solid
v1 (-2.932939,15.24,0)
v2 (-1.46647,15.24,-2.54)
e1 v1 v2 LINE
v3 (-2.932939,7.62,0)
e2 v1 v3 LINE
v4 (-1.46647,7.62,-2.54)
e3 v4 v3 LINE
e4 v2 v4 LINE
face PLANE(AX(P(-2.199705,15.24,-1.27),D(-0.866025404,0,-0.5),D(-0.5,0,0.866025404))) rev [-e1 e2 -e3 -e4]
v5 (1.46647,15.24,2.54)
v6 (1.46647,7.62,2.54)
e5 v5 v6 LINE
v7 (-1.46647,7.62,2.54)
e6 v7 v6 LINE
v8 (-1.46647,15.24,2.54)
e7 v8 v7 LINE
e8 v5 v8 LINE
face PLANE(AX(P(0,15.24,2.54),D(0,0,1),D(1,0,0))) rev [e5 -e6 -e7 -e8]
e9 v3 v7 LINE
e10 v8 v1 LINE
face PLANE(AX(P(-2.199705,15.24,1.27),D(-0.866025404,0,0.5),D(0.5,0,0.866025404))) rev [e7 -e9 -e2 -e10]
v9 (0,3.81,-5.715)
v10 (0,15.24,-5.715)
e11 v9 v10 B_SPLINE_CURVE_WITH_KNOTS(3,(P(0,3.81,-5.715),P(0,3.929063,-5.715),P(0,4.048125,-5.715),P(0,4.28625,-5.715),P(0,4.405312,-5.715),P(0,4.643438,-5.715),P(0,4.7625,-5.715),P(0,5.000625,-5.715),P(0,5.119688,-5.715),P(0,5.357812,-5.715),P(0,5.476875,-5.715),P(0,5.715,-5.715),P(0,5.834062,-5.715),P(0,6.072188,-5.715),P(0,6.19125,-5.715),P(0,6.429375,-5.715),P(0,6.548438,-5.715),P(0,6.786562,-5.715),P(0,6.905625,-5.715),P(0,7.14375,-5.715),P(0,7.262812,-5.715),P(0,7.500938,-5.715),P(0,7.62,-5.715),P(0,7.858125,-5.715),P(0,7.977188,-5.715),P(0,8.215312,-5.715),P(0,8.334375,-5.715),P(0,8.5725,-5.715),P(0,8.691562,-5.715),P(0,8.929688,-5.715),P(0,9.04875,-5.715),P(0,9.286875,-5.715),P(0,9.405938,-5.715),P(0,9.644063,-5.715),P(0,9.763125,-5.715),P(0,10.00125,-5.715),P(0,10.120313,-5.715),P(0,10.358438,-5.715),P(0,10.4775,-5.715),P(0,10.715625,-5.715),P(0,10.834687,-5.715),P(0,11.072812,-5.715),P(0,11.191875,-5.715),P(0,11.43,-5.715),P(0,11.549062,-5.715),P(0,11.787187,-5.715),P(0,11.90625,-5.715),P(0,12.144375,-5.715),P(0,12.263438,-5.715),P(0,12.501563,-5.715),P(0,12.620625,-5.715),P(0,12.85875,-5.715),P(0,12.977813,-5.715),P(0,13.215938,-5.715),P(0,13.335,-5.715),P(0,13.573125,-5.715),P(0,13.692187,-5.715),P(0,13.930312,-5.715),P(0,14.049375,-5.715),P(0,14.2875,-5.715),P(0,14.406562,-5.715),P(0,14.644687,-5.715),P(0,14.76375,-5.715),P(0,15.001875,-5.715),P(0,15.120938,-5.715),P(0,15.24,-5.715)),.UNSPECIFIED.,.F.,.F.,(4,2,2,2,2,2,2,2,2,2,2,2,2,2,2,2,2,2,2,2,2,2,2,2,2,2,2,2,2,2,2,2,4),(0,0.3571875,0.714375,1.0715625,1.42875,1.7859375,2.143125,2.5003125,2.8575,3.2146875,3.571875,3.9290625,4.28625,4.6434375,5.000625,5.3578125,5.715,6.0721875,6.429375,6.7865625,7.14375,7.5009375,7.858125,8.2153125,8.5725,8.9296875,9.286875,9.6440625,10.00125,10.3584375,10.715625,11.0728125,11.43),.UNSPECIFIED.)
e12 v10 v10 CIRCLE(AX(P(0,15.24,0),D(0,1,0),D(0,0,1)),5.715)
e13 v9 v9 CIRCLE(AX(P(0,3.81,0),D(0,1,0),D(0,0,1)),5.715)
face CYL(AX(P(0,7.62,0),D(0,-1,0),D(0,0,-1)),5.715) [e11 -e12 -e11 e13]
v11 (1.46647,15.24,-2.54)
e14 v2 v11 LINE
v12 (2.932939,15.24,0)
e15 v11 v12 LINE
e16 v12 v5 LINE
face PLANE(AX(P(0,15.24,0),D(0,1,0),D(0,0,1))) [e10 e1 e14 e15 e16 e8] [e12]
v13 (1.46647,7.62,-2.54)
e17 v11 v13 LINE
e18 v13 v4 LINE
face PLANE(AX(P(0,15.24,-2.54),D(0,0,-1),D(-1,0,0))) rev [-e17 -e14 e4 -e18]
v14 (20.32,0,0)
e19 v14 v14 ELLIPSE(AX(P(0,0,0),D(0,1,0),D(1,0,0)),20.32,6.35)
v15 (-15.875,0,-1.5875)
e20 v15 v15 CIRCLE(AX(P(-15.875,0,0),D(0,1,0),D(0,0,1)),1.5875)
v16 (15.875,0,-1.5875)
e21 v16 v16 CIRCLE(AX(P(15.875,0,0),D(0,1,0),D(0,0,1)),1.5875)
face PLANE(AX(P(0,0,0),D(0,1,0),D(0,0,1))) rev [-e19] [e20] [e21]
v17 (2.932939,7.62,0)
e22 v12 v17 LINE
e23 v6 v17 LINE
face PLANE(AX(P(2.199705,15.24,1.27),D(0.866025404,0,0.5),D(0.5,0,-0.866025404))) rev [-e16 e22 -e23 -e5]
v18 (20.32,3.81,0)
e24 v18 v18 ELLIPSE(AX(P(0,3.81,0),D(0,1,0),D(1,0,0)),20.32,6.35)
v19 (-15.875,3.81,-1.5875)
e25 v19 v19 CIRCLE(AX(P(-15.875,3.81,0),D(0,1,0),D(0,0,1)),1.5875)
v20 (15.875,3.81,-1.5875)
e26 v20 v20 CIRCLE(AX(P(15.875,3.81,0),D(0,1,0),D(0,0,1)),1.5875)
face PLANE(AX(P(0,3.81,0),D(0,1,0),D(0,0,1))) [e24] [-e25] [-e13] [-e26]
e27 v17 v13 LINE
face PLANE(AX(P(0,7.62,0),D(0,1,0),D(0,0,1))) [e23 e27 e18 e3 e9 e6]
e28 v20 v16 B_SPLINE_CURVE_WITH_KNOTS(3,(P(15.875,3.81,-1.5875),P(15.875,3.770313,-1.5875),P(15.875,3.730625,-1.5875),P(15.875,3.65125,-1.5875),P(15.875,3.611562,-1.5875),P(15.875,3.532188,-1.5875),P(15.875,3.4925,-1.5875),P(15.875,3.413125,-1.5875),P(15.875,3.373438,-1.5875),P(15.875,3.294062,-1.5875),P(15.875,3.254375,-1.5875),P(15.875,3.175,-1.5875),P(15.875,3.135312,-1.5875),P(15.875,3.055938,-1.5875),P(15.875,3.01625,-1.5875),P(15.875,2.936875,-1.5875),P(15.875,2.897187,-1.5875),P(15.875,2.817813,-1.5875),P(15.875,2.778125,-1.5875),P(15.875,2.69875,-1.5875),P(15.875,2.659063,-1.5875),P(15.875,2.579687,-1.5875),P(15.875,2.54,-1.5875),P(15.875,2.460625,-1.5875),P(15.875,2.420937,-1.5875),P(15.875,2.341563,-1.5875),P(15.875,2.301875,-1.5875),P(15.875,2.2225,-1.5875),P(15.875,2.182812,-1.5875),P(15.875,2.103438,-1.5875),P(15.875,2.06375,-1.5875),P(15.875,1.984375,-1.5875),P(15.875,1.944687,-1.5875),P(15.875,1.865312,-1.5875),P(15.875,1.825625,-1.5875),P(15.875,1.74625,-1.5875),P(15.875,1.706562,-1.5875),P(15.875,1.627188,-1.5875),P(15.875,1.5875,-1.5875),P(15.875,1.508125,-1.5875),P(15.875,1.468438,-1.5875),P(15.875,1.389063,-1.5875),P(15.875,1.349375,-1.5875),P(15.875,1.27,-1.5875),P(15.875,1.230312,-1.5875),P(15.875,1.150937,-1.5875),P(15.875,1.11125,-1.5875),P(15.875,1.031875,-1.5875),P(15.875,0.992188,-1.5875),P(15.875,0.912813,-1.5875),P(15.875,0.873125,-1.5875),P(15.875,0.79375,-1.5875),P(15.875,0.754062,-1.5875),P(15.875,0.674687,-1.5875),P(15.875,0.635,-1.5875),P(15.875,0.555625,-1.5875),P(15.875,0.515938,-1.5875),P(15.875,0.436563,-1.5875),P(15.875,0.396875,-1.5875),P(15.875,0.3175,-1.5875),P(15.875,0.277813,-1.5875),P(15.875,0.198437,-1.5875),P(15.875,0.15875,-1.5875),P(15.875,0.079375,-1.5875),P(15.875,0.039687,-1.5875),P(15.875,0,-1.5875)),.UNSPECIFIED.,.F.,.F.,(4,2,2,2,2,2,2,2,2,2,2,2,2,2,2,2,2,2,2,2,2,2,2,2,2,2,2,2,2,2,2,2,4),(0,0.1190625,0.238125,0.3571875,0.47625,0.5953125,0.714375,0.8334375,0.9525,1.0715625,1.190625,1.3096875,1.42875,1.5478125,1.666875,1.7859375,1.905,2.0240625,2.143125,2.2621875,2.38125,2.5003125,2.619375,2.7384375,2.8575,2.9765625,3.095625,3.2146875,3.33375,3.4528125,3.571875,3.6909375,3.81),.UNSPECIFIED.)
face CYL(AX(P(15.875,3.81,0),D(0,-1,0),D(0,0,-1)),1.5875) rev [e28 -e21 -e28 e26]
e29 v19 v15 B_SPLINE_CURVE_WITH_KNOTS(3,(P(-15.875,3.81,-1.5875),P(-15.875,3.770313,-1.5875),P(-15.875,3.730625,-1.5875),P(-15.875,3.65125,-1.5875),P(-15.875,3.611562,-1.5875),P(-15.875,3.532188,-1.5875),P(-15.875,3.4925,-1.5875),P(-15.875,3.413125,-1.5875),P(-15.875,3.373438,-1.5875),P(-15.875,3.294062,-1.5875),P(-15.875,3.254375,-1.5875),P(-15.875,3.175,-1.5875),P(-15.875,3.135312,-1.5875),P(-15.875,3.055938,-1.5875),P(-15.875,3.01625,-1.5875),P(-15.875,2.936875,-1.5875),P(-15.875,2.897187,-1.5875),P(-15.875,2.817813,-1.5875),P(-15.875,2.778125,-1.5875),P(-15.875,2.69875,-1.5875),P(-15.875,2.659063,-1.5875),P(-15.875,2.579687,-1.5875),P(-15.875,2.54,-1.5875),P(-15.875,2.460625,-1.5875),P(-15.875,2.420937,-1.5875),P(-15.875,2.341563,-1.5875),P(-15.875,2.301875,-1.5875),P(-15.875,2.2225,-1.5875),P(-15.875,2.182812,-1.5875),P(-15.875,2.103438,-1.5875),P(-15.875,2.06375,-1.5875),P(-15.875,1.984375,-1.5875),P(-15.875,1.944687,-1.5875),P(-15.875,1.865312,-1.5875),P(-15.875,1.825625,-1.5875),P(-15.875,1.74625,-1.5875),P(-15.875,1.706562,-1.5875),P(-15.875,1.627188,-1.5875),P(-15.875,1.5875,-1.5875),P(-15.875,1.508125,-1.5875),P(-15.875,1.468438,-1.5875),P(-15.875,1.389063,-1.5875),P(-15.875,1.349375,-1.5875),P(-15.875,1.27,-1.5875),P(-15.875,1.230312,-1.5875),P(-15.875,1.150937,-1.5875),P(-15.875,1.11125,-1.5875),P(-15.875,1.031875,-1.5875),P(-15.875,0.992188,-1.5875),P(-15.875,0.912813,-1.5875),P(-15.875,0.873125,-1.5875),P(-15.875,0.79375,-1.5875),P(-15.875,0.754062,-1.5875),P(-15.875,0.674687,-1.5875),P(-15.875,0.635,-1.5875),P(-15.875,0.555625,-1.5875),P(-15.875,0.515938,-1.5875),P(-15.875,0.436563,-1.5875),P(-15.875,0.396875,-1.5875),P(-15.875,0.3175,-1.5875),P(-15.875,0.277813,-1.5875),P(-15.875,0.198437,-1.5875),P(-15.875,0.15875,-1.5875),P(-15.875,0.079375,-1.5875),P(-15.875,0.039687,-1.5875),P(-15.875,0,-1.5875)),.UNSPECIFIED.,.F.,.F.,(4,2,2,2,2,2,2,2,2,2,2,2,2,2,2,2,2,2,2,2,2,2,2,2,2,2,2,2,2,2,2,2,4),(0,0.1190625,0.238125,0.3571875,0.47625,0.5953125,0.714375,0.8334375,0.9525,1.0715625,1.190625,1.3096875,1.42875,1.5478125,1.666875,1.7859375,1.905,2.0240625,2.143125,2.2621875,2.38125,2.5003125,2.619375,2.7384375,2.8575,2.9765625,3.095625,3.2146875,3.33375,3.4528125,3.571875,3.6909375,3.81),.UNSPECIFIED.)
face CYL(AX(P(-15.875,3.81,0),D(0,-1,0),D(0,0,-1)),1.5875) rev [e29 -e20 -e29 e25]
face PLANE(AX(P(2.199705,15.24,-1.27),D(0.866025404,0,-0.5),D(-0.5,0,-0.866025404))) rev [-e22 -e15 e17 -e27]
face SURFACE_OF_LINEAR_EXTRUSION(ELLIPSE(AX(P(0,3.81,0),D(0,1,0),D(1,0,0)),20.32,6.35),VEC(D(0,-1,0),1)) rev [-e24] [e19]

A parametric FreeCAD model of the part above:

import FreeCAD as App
import Part
import Sketcher
Q = App.Units.Quantity

doc = App.newDocument("Part")
body = doc.addObject("PartDesign::Body", "Body")

# Sketch on XZ plane
sketch1 = doc.addObject("Sketcher::SketchObject", "Sketch")
body.addObject(sketch1)
sketch1.AttachmentSupport = (doc.XZ_Plane, [""])
sketch1.MapMode = "FlatFace"
sketch1.addGeometry(Part.Ellipse(App.Vector(20.32, 0, 0), App.Vector(0, 6.35, 0), App.Vector(0, 0, 0)), False)
sketch1.addGeometry(Part.Circle(App.Vector(-15.875, 0, 0), App.Vector(0, 0, 1), 1.5875), False)
sketch1.addGeometry(Part.Circle(App.Vector(15.875, 0, 0), App.Vector(0, 0, 1), 1.5875), False)
sketch1.addConstraint(Sketcher.Constraint("Block", 0))
sketch1.addConstraint(Sketcher.Constraint("Equal", 1, 2))
sketch1.addConstraint(Sketcher.Constraint("Symmetric", 1, 3, 2, 3, -1, 1))
sketch1.addConstraint(Sketcher.Constraint("PointOnObject", 1, 3, -1))
sketch1.addConstraint(Sketcher.Constraint("Diameter", 1, Q("0.125 in")))
sketch1.addConstraint(Sketcher.Constraint("DistanceX", 1, 3, 2, 3, Q("1.25 in")))
pad1 = doc.addObject("PartDesign::Pad", "Pad")
body.addObject(pad1)
pad1.Profile = sketch1
pad1.Length = Q("0.15 in")
pad1.Reversed = True

# Sketch on XZ plane
sketch2 = doc.addObject("Sketcher::SketchObject", "Sketch001")
body.addObject(sketch2)
sketch2.AttachmentSupport = (doc.XZ_Plane, [""])
sketch2.MapMode = "FlatFace"
sketch2.AttachmentOffset = App.Placement(App.Vector(0, 0, -0.15 * 25.4), App.Rotation())
sketch2.addGeometry(Part.Circle(App.Vector(0, 0, 0), App.Vector(0, 0, 1), 6), False)
sketch2.addConstraint(Sketcher.Constraint("Coincident", 0, 3, -1, 1))
sketch2.addConstraint(Sketcher.Constraint("Diameter", 0, Q("0.45 in")))
pad2 = doc.addObject("PartDesign::Pad", "Pad001")
body.addObject(pad2)
pad2.Profile = sketch2
pad2.Length = Q("0.15 in")
pad2.Reversed = True

# Sketch on XZ plane
sketch3 = doc.addObject("Sketcher::SketchObject", "Sketch002")
body.addObject(sketch3)
sketch3.AttachmentSupport = (doc.XZ_Plane, [""])
sketch3.MapMode = "FlatFace"
sketch3.AttachmentOffset = App.Placement(App.Vector(0, 0, -0.15 * 25.4), App.Rotation())
sketch3.addGeometry(Part.Circle(App.Vector(0, 0, 0), App.Vector(0, 0, 1), 5.7), False)
sketch3.addGeometry(Part.LineSegment(App.Vector(2.9, 0, 0), App.Vector(1.5, 2.5, 0)), False)
sketch3.addGeometry(Part.LineSegment(App.Vector(1.5, 2.5, 0), App.Vector(-1.5, 2.5, 0)), False)
sketch3.addGeometry(Part.LineSegment(App.Vector(-1.5, 2.5, 0), App.Vector(-2.9, 0, 0)), False)
sketch3.addGeometry(Part.LineSegment(App.Vector(-2.9, 0, 0), App.Vector(-1.5, -2.5, 0)), False)
sketch3.addGeometry(Part.LineSegment(App.Vector(-1.5, -2.5, 0), App.Vector(1.5, -2.5, 0)), False)
sketch3.addGeometry(Part.LineSegment(App.Vector(1.5, -2.5, 0), App.Vector(2.9, 0, 0)), False)
sketch3.addConstraint(Sketcher.Constraint("Coincident", 1, 2, 2, 1))
sketch3.addConstraint(Sketcher.Constraint("Coincident", 2, 2, 3, 1))
sketch3.addConstraint(Sketcher.Constraint("Coincident", 3, 2, 4, 1))
sketch3.addConstraint(Sketcher.Constraint("Coincident", 4, 2, 5, 1))
sketch3.addConstraint(Sketcher.Constraint("Coincident", 5, 2, 6, 1))
sketch3.addConstraint(Sketcher.Constraint("Coincident", 6, 2, 1, 1))
sketch3.addConstraint(Sketcher.Constraint("Horizontal", 2))
sketch3.addConstraint(Sketcher.Constraint("Horizontal", 5))
sketch3.addConstraint(Sketcher.Constraint("Coincident", 0, 3, -1, 1))
sketch3.addConstraint(Sketcher.Constraint("Symmetric", 1, 2, 4, 2, -1, 1))
sketch3.addConstraint(Sketcher.Constraint("Symmetric", 3, 2, 6, 2, -1, 1))
sketch3.addConstraint(Sketcher.Constraint("PointOnObject", 3, 2, -1))
sketch3.addConstraint(Sketcher.Constraint("Parallel", 3, 6))
sketch3.addConstraint(Sketcher.Constraint("Vertical", 2, 2, 4, 2))
sketch3.addConstraint(Sketcher.Constraint("Diameter", 0, Q("0.45 in")))
sketch3.addConstraint(Sketcher.Constraint("Angle", 1, Q("120 deg")))
sketch3.addConstraint(Sketcher.Constraint("DistanceY", -1, 1, 1, 2, Q("0.1 in")))
sketch3.addConstraint(Sketcher.Constraint("DistanceX", 2, 2, 2, 1, 2.932939))
pad3 = doc.addObject("PartDesign::Pad", "Pad002")
body.addObject(pad3)
pad3.Profile = sketch3
pad3.Length = Q("0.45 in")
pad3.Reversed = True

doc.recompute()
